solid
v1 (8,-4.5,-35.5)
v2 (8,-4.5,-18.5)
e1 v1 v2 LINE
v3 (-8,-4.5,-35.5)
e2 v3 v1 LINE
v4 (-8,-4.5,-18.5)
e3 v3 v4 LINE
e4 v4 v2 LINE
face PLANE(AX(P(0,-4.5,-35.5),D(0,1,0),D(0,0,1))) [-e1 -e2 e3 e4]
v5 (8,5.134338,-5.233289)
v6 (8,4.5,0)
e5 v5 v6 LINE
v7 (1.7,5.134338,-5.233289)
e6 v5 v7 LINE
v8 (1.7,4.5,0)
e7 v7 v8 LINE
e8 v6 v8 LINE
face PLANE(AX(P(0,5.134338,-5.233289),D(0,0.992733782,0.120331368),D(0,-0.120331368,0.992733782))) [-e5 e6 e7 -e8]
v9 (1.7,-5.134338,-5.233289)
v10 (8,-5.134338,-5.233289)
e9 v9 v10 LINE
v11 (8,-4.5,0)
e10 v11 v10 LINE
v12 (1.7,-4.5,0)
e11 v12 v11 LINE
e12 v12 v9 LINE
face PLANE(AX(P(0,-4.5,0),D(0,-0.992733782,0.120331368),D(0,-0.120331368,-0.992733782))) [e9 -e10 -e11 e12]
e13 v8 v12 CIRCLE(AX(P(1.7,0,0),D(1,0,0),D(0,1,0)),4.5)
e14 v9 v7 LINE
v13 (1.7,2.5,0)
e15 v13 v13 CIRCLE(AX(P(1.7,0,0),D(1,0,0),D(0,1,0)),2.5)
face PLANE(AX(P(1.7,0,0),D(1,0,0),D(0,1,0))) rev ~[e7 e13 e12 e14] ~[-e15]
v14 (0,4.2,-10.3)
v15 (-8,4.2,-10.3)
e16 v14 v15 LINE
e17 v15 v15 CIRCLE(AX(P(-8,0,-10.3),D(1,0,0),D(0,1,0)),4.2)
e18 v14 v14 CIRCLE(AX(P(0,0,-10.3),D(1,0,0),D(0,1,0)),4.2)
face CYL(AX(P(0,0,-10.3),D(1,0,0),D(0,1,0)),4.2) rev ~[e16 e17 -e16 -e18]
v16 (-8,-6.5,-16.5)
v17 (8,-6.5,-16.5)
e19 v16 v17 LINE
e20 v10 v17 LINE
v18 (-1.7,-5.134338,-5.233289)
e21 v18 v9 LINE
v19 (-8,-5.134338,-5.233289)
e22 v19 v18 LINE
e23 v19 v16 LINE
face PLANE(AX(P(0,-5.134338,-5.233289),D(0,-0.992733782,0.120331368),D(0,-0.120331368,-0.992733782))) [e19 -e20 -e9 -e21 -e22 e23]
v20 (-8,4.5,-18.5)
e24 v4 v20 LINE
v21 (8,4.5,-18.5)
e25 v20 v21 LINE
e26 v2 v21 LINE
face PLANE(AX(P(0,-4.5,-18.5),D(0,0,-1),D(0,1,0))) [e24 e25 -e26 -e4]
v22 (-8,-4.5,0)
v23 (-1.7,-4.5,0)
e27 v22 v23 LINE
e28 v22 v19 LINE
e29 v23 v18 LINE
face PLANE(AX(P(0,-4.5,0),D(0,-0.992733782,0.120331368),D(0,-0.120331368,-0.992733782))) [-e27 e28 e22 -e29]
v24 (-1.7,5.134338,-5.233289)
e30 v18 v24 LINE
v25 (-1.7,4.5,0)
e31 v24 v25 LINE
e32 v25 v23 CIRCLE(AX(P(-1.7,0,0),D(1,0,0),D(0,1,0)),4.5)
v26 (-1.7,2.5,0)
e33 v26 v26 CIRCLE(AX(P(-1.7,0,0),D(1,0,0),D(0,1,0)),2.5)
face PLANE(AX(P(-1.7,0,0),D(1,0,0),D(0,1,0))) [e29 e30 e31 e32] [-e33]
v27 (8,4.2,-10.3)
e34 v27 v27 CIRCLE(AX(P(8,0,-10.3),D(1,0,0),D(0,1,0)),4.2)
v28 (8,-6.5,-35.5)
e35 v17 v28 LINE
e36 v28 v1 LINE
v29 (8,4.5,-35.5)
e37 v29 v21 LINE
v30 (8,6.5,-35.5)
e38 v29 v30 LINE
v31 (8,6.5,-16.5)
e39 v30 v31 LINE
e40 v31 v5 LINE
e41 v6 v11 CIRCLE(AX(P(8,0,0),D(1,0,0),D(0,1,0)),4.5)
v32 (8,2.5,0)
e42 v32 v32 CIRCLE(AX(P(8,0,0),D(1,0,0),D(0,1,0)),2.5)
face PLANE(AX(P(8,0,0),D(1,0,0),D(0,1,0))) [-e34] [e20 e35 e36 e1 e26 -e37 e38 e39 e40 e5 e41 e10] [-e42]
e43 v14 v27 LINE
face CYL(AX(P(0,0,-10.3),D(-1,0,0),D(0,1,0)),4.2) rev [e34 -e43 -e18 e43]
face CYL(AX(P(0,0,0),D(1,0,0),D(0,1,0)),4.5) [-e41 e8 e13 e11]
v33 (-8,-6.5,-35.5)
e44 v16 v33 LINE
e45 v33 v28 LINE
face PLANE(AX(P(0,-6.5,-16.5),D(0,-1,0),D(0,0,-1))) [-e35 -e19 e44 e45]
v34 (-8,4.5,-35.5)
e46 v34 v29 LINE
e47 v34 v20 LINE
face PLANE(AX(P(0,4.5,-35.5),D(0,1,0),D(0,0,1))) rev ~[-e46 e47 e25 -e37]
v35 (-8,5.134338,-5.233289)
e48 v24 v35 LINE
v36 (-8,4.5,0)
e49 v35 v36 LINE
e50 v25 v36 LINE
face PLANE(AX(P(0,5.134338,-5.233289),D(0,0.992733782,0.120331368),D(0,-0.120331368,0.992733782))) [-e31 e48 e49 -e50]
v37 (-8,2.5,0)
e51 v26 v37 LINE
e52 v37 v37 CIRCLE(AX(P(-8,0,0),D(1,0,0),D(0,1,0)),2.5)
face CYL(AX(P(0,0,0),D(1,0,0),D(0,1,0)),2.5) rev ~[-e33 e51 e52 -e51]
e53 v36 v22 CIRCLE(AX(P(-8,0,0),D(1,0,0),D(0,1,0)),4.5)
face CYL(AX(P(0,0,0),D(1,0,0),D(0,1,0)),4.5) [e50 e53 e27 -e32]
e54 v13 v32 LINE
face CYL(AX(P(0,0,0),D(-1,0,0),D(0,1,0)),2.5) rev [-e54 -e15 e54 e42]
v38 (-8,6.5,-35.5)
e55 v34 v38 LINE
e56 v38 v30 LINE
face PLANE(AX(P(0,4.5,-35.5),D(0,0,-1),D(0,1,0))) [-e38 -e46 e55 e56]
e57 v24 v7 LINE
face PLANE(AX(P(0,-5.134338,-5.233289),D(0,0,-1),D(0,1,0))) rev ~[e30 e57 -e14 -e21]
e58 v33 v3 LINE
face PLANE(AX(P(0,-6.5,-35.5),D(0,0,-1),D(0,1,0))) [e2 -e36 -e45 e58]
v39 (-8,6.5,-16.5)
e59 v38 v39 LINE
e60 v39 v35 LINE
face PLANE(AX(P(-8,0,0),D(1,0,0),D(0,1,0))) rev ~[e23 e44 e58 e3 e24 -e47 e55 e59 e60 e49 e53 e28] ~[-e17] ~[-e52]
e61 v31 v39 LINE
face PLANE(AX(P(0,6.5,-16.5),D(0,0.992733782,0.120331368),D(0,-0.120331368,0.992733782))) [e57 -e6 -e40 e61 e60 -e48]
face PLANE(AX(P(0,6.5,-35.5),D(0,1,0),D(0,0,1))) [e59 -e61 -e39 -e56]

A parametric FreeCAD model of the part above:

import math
import FreeCAD as App
import Part
import Sketcher
Q = App.Units.Quantity

doc = App.newDocument("Part")
body = doc.addObject("PartDesign::Body", "Body")

sketch1 = body.newObject("Sketcher::SketchObject", "Sketch")
sketch1.AttachmentSupport = (doc.getObject("YZ_Plane"), [""])
sketch1.MapMode = "FlatFace"
sketch1.addGeometry([
    Part.ArcOfCircle(Part.Circle(App.Vector(0, 0, 0), App.Vector(0, 0, 1), 4.5), math.radians(0), math.radians(180)),
    Part.LineSegment(App.Vector(-4.5, 0, 0), App.Vector(-5.1, -5.2, 0)),
    Part.LineSegment(App.Vector(-5.1, -5.2, 0), App.Vector(-6.5, -16.5, 0)),
    Part.LineSegment(App.Vector(-6.5, -16.5, 0), App.Vector(-6.5, -35.5, 0)),
    Part.LineSegment(App.Vector(-6.5, -35.5, 0), App.Vector(-4.5, -35.5, 0)),
    Part.LineSegment(App.Vector(-4.5, -35.5, 0), App.Vector(-4.5, -18.5, 0)),
    Part.LineSegment(App.Vector(-4.5, -18.5, 0), App.Vector(4.5, -18.5, 0)),
    Part.LineSegment(App.Vector(4.5, -18.5, 0), App.Vector(4.5, -35.5, 0)),
    Part.LineSegment(App.Vector(4.5, -35.5, 0), App.Vector(6.5, -35.5, 0)),
    Part.LineSegment(App.Vector(6.5, -35.5, 0), App.Vector(6.5, -16.5, 0)),
    Part.LineSegment(App.Vector(6.5, -16.5, 0), App.Vector(5.1, -5.2, 0)),
    Part.LineSegment(App.Vector(5.1, -5.2, 0), App.Vector(4.5, 0, 0)),
    Part.Circle(App.Vector(0, -10.3, 0), App.Vector(0, 0, 1), 4.2),
    Part.Circle(App.Vector(0, 0, 0), App.Vector(0, 0, 1), 2.5),
], False)
sketch1.addConstraint([
    Sketcher.Constraint("Coincident", 0, 2, 1, 1),
    Sketcher.Constraint("Coincident", 1, 2, 2, 1),
    Sketcher.Constraint("Coincident", 2, 2, 3, 1),
    Sketcher.Constraint("Coincident", 3, 2, 4, 1),
    Sketcher.Constraint("Coincident", 4, 2, 5, 1),
    Sketcher.Constraint("Coincident", 5, 2, 6, 1),
    Sketcher.Constraint("Coincident", 6, 2, 7, 1),
    Sketcher.Constraint("Coincident", 7, 2, 8, 1),
    Sketcher.Constraint("Coincident", 8, 2, 9, 1),
    Sketcher.Constraint("Coincident", 9, 2, 10, 1),
    Sketcher.Constraint("Coincident", 10, 2, 11, 1),
    Sketcher.Constraint("Coincident", 11, 2, 0, 1),
    Sketcher.Constraint("Vertical", 3),
    Sketcher.Constraint("Horizontal", 4),
    Sketcher.Constraint("Vertical", 5),
    Sketcher.Constraint("Horizontal", 6),
    Sketcher.Constraint("Vertical", 7),
    Sketcher.Constraint("Horizontal", 8),
    Sketcher.Constraint("Vertical", 9),
    Sketcher.Constraint("Coincident", 0, 3, -1, 1),
    Sketcher.Constraint("Coincident", 13, 3, -1, 1),
    Sketcher.Constraint("Symmetric", 4, 2, 7, 2, -2),
    Sketcher.Constraint("Symmetric", 2, 2, 9, 2, -2),
    Sketcher.Constraint("Symmetric", 1, 2, 10, 2, -2),
    Sketcher.Constraint("PointOnObject", 12, 3, -2),
    Sketcher.Constraint("PointOnObject", 0, 2, -1),
    Sketcher.Constraint("PointOnObject", 11, 2, -1),
    Sketcher.Constraint("Parallel", 1, 2),
    Sketcher.Constraint("Vertical", 0, 2, 4, 2),
    Sketcher.Constraint("Diameter", 13, Q("5 mm")),
    Sketcher.Constraint("Diameter", 12, Q("8.4 mm")),
    Sketcher.Constraint("Radius", 0, Q("4.5 mm")),
    Sketcher.Constraint("DistanceX", 4, 1, 4, 2, Q("2 mm")),
    Sketcher.Constraint("DistanceY", 3, 2, 3, 1, Q("19 mm")),
    Sketcher.Constraint("DistanceY", 5, 1, 5, 2, Q("17 mm")),
    Sketcher.Constraint("DistanceY", 12, 3, -1, 1, Q("10.3 mm")),
    Sketcher.Constraint("DistanceY", 2, 2, -1, 1, Q("16.5 mm")),
    Sketcher.Constraint("DistanceX", 1, 2, -1, 1, Q("5.134338 mm")),
])
pad1 = body.newObject("PartDesign::Pad", "Pad")
pad1.Profile = sketch1
pad1.Type = "TwoLengths"
pad1.Length = 8
pad1.Length2 = 8

sketch2 = body.newObject("Sketcher::SketchObject", "Sketch001")
sketch2.AttachmentSupport = (doc.getObject("YZ_Plane"), [""])
sketch2.MapMode = "FlatFace"
sketch2.addGeometry([
    Part.ArcOfCircle(Part.Circle(App.Vector(0, 0, 0), App.Vector(0, 0, 1), 4.5), math.radians(0), math.radians(180)),
    Part.LineSegment(App.Vector(-4.5, 0, 0), App.Vector(-5.1, -5.2, 0)),
    Part.LineSegment(App.Vector(-5.1, -5.2, 0), App.Vector(5.1, -5.2, 0)),
    Part.LineSegment(App.Vector(5.1, -5.2, 0), App.Vector(4.5, 0, 0)),
    Part.Circle(App.Vector(0, 0, 0), App.Vector(0, 0, 1), 2.5),
], False)
sketch2.addConstraint([
    Sketcher.Constraint("Coincident", 0, 2, 1, 1),
    Sketcher.Constraint("Coincident", 1, 2, 2, 1),
    Sketcher.Constraint("Coincident", 2, 2, 3, 1),
    Sketcher.Constraint("Coincident", 3, 2, 0, 1),
    Sketcher.Constraint("Horizontal", 2),
    Sketcher.Constraint("Coincident", 0, 3, -1, 1),
    Sketcher.Constraint("Coincident", 4, 3, -1, 1),
    Sketcher.Constraint("PointOnObject", 0, 2, -1),
    Sketcher.Constraint("PointOnObject", 3, 2, -1),
    Sketcher.Constraint("Equal", 1, 3),
    Sketcher.Constraint("Diameter", 4, Q("5 mm")),
    Sketcher.Constraint("Radius", 0, Q("4.5 mm")),
    Sketcher.Constraint("DistanceX", 2, 1, 2, 2, Q("10.268676 mm")),
    Sketcher.Constraint("DistanceY", 1, 2, -1, 1, Q("5.233289 mm")),
])
pocket1 = body.newObject("PartDesign::Pocket", "Pocket")
pocket1.Profile = sketch2
pocket1.Type = "TwoLengths"
pocket1.Length = 1.7
pocket1.Length2 = 1.7

doc.recompute()
